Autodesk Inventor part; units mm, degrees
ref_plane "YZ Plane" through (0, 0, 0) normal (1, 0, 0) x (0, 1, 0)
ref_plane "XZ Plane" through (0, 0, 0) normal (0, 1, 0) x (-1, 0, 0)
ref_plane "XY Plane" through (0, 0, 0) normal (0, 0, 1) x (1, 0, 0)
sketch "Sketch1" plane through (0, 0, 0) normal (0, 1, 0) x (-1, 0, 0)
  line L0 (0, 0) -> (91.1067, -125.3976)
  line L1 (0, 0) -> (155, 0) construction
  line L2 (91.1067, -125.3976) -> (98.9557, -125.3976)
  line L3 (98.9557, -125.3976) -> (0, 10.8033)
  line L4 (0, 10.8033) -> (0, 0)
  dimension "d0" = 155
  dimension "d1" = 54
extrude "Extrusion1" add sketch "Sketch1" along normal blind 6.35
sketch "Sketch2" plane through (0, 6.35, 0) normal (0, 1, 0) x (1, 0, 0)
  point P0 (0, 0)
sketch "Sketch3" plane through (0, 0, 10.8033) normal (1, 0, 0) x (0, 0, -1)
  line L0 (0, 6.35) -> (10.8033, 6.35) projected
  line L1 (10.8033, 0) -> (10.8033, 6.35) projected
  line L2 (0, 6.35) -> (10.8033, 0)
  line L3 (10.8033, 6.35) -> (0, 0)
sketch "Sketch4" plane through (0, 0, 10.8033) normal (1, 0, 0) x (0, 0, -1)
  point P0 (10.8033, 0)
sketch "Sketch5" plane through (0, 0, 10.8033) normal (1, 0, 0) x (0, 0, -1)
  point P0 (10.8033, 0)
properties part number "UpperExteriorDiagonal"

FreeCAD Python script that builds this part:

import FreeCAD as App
import Part
import Sketcher
Q = App.Units.Quantity

doc = App.newDocument("Part")
body = doc.addObject("PartDesign::Body", "Body")

# Sketch on XZ plane
sketch1 = body.newObject("Sketcher::SketchObject", "Sketch")
sketch1.AttachmentSupport = (doc.getObject("XZ_Plane"), [""])
sketch1.MapMode = "FlatFace"
sketch1.addGeometry([
    Part.LineSegment(App.Vector(0, 10.8033, 0), App.Vector(0, 0, 0)),
    Part.LineSegment(App.Vector(0, 0, 0), App.Vector(-91.1067, -125.3976, 0)),
    Part.LineSegment(App.Vector(-91.1067, -125.3976, 0), App.Vector(-98.9557, -125.3976, 0)),
    Part.LineSegment(App.Vector(-98.9557, -125.3976, 0), App.Vector(0, 10.8033, 0)),
], False)
sketch1.addConstraint([
    Sketcher.Constraint("Coincident", 0, 2, 1, 1),
    Sketcher.Constraint("Coincident", 1, 2, 2, 1),
    Sketcher.Constraint("Coincident", 2, 2, 3, 1),
    Sketcher.Constraint("Coincident", 3, 2, 0, 1),
    Sketcher.Constraint("Vertical", 0),
    Sketcher.Constraint("Horizontal", 2),
    Sketcher.Constraint("Coincident", 0, 2, -1, 1),
    Sketcher.Constraint("Parallel", 1, 3),
    Sketcher.Constraint("Angle", 3, Q("54 deg")),
    Sketcher.Constraint("Distance", 1, 155.0),
    Sketcher.Constraint("DistanceX", 2, 2, 2, 1, 7.849),
])
pad1 = body.newObject("PartDesign::Pad", "Pad")
pad1.Profile = sketch1
pad1.Length = 6.35
pad1.Reversed = True

doc.recompute()
